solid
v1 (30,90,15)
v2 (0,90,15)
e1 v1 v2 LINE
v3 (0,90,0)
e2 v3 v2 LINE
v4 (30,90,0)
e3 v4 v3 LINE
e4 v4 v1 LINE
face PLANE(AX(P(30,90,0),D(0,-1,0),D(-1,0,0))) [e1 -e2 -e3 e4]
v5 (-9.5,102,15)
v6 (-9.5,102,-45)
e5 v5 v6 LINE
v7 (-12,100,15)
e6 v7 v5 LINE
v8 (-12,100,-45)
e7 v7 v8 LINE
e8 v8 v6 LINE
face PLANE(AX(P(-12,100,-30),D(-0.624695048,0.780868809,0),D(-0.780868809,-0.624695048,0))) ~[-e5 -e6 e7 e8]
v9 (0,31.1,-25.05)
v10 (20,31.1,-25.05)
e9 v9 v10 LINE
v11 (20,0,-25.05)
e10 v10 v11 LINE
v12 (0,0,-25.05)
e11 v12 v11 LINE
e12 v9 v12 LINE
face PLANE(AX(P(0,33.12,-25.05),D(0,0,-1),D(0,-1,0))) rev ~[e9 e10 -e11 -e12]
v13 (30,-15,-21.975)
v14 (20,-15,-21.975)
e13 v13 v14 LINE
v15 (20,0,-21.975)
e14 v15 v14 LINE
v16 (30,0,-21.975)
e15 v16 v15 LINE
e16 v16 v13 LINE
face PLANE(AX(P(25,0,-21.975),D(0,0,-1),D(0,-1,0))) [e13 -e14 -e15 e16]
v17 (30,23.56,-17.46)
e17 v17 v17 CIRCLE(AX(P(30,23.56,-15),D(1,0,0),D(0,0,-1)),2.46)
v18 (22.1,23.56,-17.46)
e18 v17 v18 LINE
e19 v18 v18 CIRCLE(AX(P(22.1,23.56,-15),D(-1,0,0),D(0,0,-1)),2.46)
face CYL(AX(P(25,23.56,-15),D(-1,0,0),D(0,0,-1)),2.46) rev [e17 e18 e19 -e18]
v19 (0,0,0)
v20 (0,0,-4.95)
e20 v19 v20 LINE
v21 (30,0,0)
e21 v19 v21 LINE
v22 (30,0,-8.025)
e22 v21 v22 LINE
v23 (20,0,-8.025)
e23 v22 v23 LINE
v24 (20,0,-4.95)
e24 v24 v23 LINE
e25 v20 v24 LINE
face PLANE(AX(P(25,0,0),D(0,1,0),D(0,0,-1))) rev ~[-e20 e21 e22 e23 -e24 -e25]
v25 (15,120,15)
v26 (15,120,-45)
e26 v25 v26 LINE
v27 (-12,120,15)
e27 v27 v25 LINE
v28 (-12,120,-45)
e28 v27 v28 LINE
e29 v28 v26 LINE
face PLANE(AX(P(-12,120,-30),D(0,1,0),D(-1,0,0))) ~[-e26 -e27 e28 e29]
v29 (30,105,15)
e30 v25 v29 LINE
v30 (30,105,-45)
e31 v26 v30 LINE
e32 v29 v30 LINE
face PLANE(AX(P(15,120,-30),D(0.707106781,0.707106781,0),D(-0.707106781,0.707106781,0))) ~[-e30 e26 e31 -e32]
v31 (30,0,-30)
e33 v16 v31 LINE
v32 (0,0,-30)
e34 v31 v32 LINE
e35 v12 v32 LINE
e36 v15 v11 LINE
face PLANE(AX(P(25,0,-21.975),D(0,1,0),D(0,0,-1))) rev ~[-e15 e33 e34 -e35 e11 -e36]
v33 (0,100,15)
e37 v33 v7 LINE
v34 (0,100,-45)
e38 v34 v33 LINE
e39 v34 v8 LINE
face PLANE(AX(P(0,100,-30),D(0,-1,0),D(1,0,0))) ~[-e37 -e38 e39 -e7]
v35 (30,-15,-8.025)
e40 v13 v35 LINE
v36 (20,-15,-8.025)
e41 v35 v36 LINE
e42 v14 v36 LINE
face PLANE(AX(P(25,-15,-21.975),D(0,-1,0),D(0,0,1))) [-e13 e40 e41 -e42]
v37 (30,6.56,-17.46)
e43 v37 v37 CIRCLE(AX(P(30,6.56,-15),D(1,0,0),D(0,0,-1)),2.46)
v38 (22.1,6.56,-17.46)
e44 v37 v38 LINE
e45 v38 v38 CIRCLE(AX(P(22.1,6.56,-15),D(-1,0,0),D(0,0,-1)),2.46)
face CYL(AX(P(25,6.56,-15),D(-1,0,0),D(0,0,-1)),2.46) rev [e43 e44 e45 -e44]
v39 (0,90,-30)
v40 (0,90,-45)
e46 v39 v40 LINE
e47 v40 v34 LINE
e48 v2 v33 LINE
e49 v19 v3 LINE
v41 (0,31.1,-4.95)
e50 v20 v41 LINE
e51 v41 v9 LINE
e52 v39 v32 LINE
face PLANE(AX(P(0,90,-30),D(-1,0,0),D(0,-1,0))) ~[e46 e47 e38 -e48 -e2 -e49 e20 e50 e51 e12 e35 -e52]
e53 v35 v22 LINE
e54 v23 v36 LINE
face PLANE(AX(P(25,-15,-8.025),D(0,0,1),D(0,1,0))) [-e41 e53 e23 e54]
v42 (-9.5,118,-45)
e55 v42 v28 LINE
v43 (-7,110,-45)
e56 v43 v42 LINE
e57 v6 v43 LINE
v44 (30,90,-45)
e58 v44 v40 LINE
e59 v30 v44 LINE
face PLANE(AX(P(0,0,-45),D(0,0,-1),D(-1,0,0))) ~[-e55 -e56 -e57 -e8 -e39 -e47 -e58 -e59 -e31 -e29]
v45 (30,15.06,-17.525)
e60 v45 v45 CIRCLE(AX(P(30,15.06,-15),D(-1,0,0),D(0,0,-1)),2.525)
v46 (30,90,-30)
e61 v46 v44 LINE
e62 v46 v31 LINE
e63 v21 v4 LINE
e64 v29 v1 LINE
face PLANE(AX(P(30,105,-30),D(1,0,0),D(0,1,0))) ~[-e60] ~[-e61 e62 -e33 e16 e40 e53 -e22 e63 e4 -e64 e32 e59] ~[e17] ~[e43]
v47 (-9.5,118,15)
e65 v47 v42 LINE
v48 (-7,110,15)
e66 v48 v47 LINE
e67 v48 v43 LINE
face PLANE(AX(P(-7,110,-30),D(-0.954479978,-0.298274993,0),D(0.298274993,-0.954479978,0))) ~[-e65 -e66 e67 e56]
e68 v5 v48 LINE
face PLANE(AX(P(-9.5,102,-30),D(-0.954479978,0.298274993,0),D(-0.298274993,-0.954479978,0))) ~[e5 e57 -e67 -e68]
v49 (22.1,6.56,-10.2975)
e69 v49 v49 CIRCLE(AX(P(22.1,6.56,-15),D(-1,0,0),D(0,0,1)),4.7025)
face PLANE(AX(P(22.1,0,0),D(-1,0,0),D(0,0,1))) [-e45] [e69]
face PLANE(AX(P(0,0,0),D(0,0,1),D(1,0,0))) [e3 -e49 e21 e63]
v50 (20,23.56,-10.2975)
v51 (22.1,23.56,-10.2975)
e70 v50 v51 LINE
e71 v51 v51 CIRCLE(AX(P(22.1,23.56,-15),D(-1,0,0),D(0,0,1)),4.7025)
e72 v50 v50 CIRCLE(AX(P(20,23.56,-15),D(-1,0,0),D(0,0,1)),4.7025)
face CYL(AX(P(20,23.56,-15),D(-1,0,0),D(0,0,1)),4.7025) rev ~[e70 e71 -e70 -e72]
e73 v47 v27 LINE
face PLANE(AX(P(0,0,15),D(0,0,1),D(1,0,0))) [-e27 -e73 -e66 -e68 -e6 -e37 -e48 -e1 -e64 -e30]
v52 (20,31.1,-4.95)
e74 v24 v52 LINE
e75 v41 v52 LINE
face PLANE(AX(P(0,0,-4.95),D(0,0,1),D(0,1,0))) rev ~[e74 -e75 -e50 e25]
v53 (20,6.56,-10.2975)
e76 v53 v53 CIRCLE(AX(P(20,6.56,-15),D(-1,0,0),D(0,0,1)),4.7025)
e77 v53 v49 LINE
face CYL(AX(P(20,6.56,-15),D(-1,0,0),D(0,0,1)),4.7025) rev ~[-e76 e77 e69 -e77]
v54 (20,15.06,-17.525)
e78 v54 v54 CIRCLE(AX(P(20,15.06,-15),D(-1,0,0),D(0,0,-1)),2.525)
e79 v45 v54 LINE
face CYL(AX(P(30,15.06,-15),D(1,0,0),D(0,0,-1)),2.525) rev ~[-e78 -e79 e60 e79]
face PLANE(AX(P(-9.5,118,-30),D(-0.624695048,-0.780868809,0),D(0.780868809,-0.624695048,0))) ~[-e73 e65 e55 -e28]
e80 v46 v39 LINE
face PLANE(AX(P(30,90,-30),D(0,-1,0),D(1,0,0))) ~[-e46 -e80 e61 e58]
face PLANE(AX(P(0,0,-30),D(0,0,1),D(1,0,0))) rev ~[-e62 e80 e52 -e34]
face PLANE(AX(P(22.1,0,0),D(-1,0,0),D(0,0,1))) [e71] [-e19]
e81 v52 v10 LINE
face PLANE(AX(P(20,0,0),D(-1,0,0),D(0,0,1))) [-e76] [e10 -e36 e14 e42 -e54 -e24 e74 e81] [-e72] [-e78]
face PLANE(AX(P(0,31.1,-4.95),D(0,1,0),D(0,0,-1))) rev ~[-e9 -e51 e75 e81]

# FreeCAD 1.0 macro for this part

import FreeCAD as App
import Part
import Sketcher

V = App.Vector


def add_polygon(sketch, points):
    """Adds a closed chain of lines whose ends are joined by coincident constraints."""
    first, n = sketch.GeometryCount, len(points)
    for a, b in zip(points, points[1:] + points[:1]):
        sketch.addGeometry(Part.LineSegment(App.Vector(*a, 0), App.Vector(*b, 0)), False)
    for i in range(n):
        sketch.addConstraint(Sketcher.Constraint("Coincident", first + i, 2, first + (i + 1) % n, 1))

doc = App.newDocument("Part")
params = doc.addObject("Spreadsheet::Sheet", "Params")
for row, (alias, value) in enumerate([
    ("sketch1_width", "25 mm"),
    ("sketch1_height", "40 mm"),
    ("pad1_length", "30 mm"),
    ("sketch2_diameter", "4.92 mm"),
    ("pocket1_length", "30 mm"),
    ("sketch3_height", "20.1 mm"),
    ("sketch3_width", "33.12 mm"),
    ("pocket2_length", "20 mm"),
    ("sketch4_height", "13.95 mm"),
    ("sketch4_width", "5 mm"),
    ("pad2_length", "15 mm"),
    ("sketch5_diameter", "4.92 mm"),
    ("pocket3_length", "2.1 mm"),
    ("sketch6_diameter", "4.92 mm"),
    ("pocket4_length", "10 mm"),
    ("sketch7_diameter", "4.92 mm"),
    ("pocket5_length", "2.1 mm"),
    ("sketch8_diameter", "4.92 mm"),
    ("sketch8_width", "40 mm"),
    ("sketch8_width2", "15 mm"),
    ("sketch8_height", "30 mm"),
    ("sketch8_height2", "13.95 mm"),
    ("pad3_length", "5 mm"),
    ("sketch9_width", "30 mm"),
    ("pad4_length", "30 mm"),
    ("sketch10_diameter", "5.05 mm"),
    ("pocket6_length", "30 mm"),
    ("sketch11_width", "12 mm"),
    ("sketch11_width2", "30 mm"),
    ("sketch11_width3", "27 mm"),
    ("sketch11_height", "35 mm"),
    ("pad5_length", "30 mm"),
    ("sketch12_width", "2.02 mm"),
    ("sketch12_height", "20.1 mm"),
    ("pad6_length", "20 mm"),
    ("sketch13_width", "30 mm"),
    ("sketch13_height", "15 mm"),
    ("sketch13_width2", "12 mm"),
    ("sketch13_height2", "10 mm"),
    ("pad7_length", "15 mm"),
], start=1):
    params.set(f"A{row}", alias)
    params.set(f"B{row}", "=" + value)
    params.setAlias(f"B{row}", alias)

body = doc.addObject("PartDesign::Body", "Body")

# Sketch on XY plane
sketch1 = body.newObject("Sketcher::SketchObject", "Sketch")
sketch1.AttachmentSupport = (doc.getObject("XY_Plane"), [""])
sketch1.MapMode = "FlatFace"
add_polygon(sketch1, [(0, 40), (0, 0), (25, 0), (25, 40)])  # lines 0-3
sketch1.addConstraint([
    Sketcher.Constraint("Vertical", 0),
    Sketcher.Constraint("Horizontal", 1),
    Sketcher.Constraint("Vertical", 2),
    Sketcher.Constraint("Horizontal", 3),
    Sketcher.Constraint("Coincident", 0, 2, -1, 1),
    Sketcher.Constraint("DistanceX", 1, 1, 1, 2, 25.0),
    Sketcher.Constraint("DistanceY", 0, 2, 0, 1, 40.0),
])
sketch1.setExpression("Constraints[9]", "Params.sketch1_width")
sketch1.setExpression("Constraints[10]", "Params.sketch1_height")
pad1 = body.newObject("PartDesign::Pad", "Pad")
pad1.Profile = sketch1
pad1.setExpression("Length", "Params.pad1_length")
pad1.Reversed = True

# Sketch on YZ plane
sketch2 = body.newObject("Sketcher::SketchObject", "Sketch001")
sketch2.AttachmentSupport = (doc.getObject("YZ_Plane"), [""])
sketch2.MapMode = "FlatFace"
sketch2.AttachmentOffset = App.Placement(V(0, 0, 25), App.Rotation())
sketch2.addGeometry(Part.Circle(V(6.56, -15, 0), V(0, 0, 1), 2.46), False)
sketch2.addConstraint([
    Sketcher.Constraint("Diameter", 0, 4.92),
    Sketcher.Constraint("DistanceY", 0, 3, -1, 1, 15.0),
    Sketcher.Constraint("DistanceX", -1, 1, 0, 3, 6.56),
])
sketch2.setExpression("Constraints[0]", "Params.sketch2_diameter")
pocket1 = body.newObject("PartDesign::Pocket", "Pocket")
pocket1.Profile = sketch2
pocket1.setExpression("Length", "Params.pocket1_length")

# Sketch on YZ plane
sketch3 = body.newObject("Sketcher::SketchObject", "Sketch002")
sketch3.AttachmentSupport = (doc.getObject("YZ_Plane"), [""])
sketch3.MapMode = "FlatFace"
add_polygon(sketch3, [(0, -25.05), (0, -4.95), (33.12, -4.95), (33.12, -25.05)])  # lines 0-3
sketch3.addConstraint([
    Sketcher.Constraint("Vertical", 0),
    Sketcher.Constraint("Horizontal", 1),
    Sketcher.Constraint("Vertical", 2),
    Sketcher.Constraint("Horizontal", 3),
    Sketcher.Constraint("PointOnObject", 0, 2, -2),
    Sketcher.Constraint("DistanceY", 0, 1, 0, 2, 20.1),
    Sketcher.Constraint("DistanceX", 1, 1, 1, 2, 33.12),
    Sketcher.Constraint("DistanceY", 0, 2, -1, 1, 4.95),
])
sketch3.setExpression("Constraints[9]", "Params.sketch3_height")
sketch3.setExpression("Constraints[10]", "Params.sketch3_width")
pocket2 = body.newObject("PartDesign::Pocket", "Pocket001")
pocket2.Profile = sketch3
pocket2.setExpression("Length", "Params.pocket2_length")
pocket2.Reversed = True

# Sketch on XZ plane
sketch4 = body.newObject("Sketcher::SketchObject", "Sketch003")
sketch4.AttachmentSupport = (doc.getObject("XZ_Plane"), [""])
sketch4.MapMode = "FlatFace"
add_polygon(sketch4, [(25, -8.025), (20, -8.025), (20, -21.975), (25, -21.975)])  # lines 0-3
sketch4.addConstraint([
    Sketcher.Constraint("Horizontal", 0),
    Sketcher.Constraint("Vertical", 1),
    Sketcher.Constraint("Horizontal", 2),
    Sketcher.Constraint("Vertical", 3),
    Sketcher.Constraint("DistanceY", 1, 2, 1, 1, 13.95),
    Sketcher.Constraint("DistanceX", 0, 2, 0, 1, 5.0),
    Sketcher.Constraint("DistanceX", -1, 1, 0, 2, 20.0),
    Sketcher.Constraint("DistanceY", 0, 2, -1, 1, 8.025),
])
sketch4.setExpression("Constraints[8]", "Params.sketch4_height")
sketch4.setExpression("Constraints[9]", "Params.sketch4_width")
pad2 = body.newObject("PartDesign::Pad", "Pad001")
pad2.Profile = sketch4
pad2.setExpression("Length", "Params.pad2_length")

# Sketch on YZ plane
sketch5 = body.newObject("Sketcher::SketchObject", "Sketch004")
sketch5.AttachmentSupport = (doc.getObject("YZ_Plane"), [""])
sketch5.MapMode = "FlatFace"
sketch5.AttachmentOffset = App.Placement(V(0, 0, 20), App.Rotation())
sketch5.addGeometry([
    Part.Circle(V(6.56, -15, 0), V(0, 0, 1), 4.7025),
    Part.Circle(V(6.56, -15, 0), V(0, 0, 1), 2.46),
], False)
sketch5.addConstraint([
    Sketcher.Constraint("Coincident", 1, 3, 0, 3),
    Sketcher.Constraint("Diameter", 0, 9.405),
    Sketcher.Constraint("Diameter", 1, 4.92),
    Sketcher.Constraint("DistanceY", 0, 3, -1, 1, 15.0),
    Sketcher.Constraint("DistanceX", -1, 1, 0, 3, 6.56),
])
sketch5.setExpression("Constraints[2]", "Params.sketch5_diameter")
pocket3 = body.newObject("PartDesign::Pocket", "Pocket002")
pocket3.Profile = sketch5
pocket3.setExpression("Length", "Params.pocket3_length")
pocket3.Reversed = True

# Sketch on YZ plane
sketch6 = body.newObject("Sketcher::SketchObject", "Sketch005")
sketch6.AttachmentSupport = (doc.getObject("YZ_Plane"), [""])
sketch6.MapMode = "FlatFace"
sketch6.AttachmentOffset = App.Placement(V(0, 0, 25), App.Rotation())
sketch6.addGeometry(Part.Circle(V(23.56, -15, 0), V(0, 0, 1), 2.46), False)
sketch6.addConstraint([
    Sketcher.Constraint("Diameter", 0, 4.92),
    Sketcher.Constraint("DistanceY", 0, 3, -1, 1, 15.0),
    Sketcher.Constraint("DistanceX", -1, 1, 0, 3, 23.56),
])
sketch6.setExpression("Constraints[0]", "Params.sketch6_diameter")
pocket4 = body.newObject("PartDesign::Pocket", "Pocket003")
pocket4.Profile = sketch6
pocket4.setExpression("Length", "Params.pocket4_length")

# Sketch on YZ plane
sketch7 = body.newObject("Sketcher::SketchObject", "Sketch006")
sketch7.AttachmentSupport = (doc.getObject("YZ_Plane"), [""])
sketch7.MapMode = "FlatFace"
sketch7.AttachmentOffset = App.Placement(V(0, 0, 20), App.Rotation())
sketch7.addGeometry([
    Part.Circle(V(23.56, -15, 0), V(0, 0, 1), 4.7025),
    Part.Circle(V(23.56, -15, 0), V(0, 0, 1), 2.46),
], False)
sketch7.addConstraint([
    Sketcher.Constraint("Coincident", 1, 3, 0, 3),
    Sketcher.Constraint("Diameter", 0, 9.405),
    Sketcher.Constraint("Diameter", 1, 4.92),
    Sketcher.Constraint("DistanceY", 0, 3, -1, 1, 15.0),
    Sketcher.Constraint("DistanceX", -1, 1, 0, 3, 23.56),
])
sketch7.setExpression("Constraints[2]", "Params.sketch7_diameter")
pocket5 = body.newObject("PartDesign::Pocket", "Pocket004")
pocket5.Profile = sketch7
pocket5.setExpression("Length", "Params.pocket5_length")
pocket5.Reversed = True

# Sketch on YZ plane
sketch8 = body.newObject("Sketcher::SketchObject", "Sketch007")
sketch8.AttachmentSupport = (doc.getObject("YZ_Plane"), [""])
sketch8.MapMode = "FlatFace"
sketch8.AttachmentOffset = App.Placement(V(0, 0, 25), App.Rotation())
add_polygon(sketch8, [(0, -30), (40, -30), (40, 0), (0, 0), (0, -8.025), (-15, -8.025), (-15, -21.975), (0, -21.975)])  # lines 0-7
sketch8.addGeometry(Part.Circle(V(6.56, -15, 0), V(0, 0, 1), 2.46), False)  # 8
sketch8.addGeometry(Part.Circle(V(23.56, -15, 0), V(0, 0, 1), 2.46), False)  # 9
sketch8.addConstraint([
    Sketcher.Constraint("Horizontal", 0),
    Sketcher.Constraint("Vertical", 1),
    Sketcher.Constraint("Horizontal", 2),
    Sketcher.Constraint("Vertical", 3),
    Sketcher.Constraint("Horizontal", 4),
    Sketcher.Constraint("Vertical", 5),
    Sketcher.Constraint("Horizontal", 6),
    Sketcher.Constraint("Vertical", 7),
    Sketcher.Constraint("Coincident", 2, 2, -1, 1),
    Sketcher.Constraint("Equal", 8, 9),
    Sketcher.Constraint("PointOnObject", 6, 2, -2),
    Sketcher.Constraint("Horizontal", 8, 3, 9, 3),
    Sketcher.Constraint("Equal", 3, 7),
    Sketcher.Constraint("Diameter", 8, 4.92),
    Sketcher.Constraint("DistanceX", 0, 1, 0, 2, 40.0),
    Sketcher.Constraint("DistanceX", 4, 2, 4, 1, 15.0),
    Sketcher.Constraint("DistanceY", 1, 1, 1, 2, 30.0),
    Sketcher.Constraint("DistanceY", 8, 3, -1, 1, 15.0),
    Sketcher.Constraint("DistanceX", 8, 3, 9, 3, 17.0),
    Sketcher.Constraint("DistanceY", 5, 2, 5, 1, 13.95),
    Sketcher.Constraint("DistanceX", -1, 1, 8, 3, 6.56),
])
sketch8.setExpression("Constraints[21]", "Params.sketch8_diameter")
sketch8.setExpression("Constraints[22]", "Params.sketch8_width")
sketch8.setExpression("Constraints[23]", "Params.sketch8_width2")
sketch8.setExpression("Constraints[24]", "Params.sketch8_height")
sketch8.setExpression("Constraints[27]", "Params.sketch8_height2")
pad3 = body.newObject("PartDesign::Pad", "Pad002")
pad3.Profile = sketch8
pad3.setExpression("Length", "Params.pad3_length")

# Sketch on XZ plane
sketch9 = body.newObject("Sketcher::SketchObject", "Sketch008")
sketch9.AttachmentSupport = (doc.getObject("XZ_Plane"), [""])
sketch9.MapMode = "FlatFace"
sketch9.AttachmentOffset = App.Placement(V(0, 0, -40), App.Rotation())
add_polygon(sketch9, [(30, -30), (0, -30), (0, 0), (30, 0)])  # lines 0-3
sketch9.addConstraint([
    Sketcher.Constraint("Horizontal", 0),
    Sketcher.Constraint("Vertical", 1),
    Sketcher.Constraint("Horizontal", 2),
    Sketcher.Constraint("Vertical", 3),
    Sketcher.Constraint("Coincident", 1, 2, -1, 1),
    Sketcher.Constraint("Equal", 2, 1),
    Sketcher.Constraint("DistanceX", 0, 2, 0, 1, 30.0),
])
sketch9.setExpression("Constraints[10]", "Params.sketch9_width")
pad4 = body.newObject("PartDesign::Pad", "Pad003")
pad4.Profile = sketch9
pad4.setExpression("Length", "Params.pad4_length")
pad4.Reversed = True

# Sketch on YZ plane
sketch10 = body.newObject("Sketcher::SketchObject", "Sketch009")
sketch10.AttachmentSupport = (doc.getObject("YZ_Plane"), [""])
sketch10.MapMode = "FlatFace"
sketch10.AttachmentOffset = App.Placement(V(0, 0, 30), App.Rotation())
sketch10.addGeometry(Part.Circle(V(15.06, -15, 0), V(0, 0, 1), 2.525), False)
sketch10.addConstraint([
    Sketcher.Constraint("Diameter", 0, 5.05),
    Sketcher.Constraint("DistanceY", 0, 3, -1, 1, 15.0),
    Sketcher.Constraint("DistanceX", -1, 1, 0, 3, 15.06),
])
sketch10.setExpression("Constraints[0]", "Params.sketch10_diameter")
pocket6 = body.newObject("PartDesign::Pocket", "Pocket005")
pocket6.Profile = sketch10
pocket6.setExpression("Length", "Params.pocket6_length")

# Sketch on XY plane
sketch11 = body.newObject("Sketcher::SketchObject", "Sketch010")
sketch11.AttachmentSupport = (doc.getObject("XY_Plane"), [""])
sketch11.MapMode = "FlatFace"
add_polygon(sketch11, [(0, 70), (30, 70), (30, 105), (15, 120), (-12, 120), (-9.5, 118), (-7, 110), (-9.5, 102), (-12, 100), (0, 100)])  # lines 0-9
sketch11.addConstraint([
    Sketcher.Constraint("Horizontal", 0),
    Sketcher.Constraint("Vertical", 1),
    Sketcher.Constraint("Horizontal", 3),
    Sketcher.Constraint("Horizontal", 8),
    Sketcher.Constraint("Vertical", 9),
    Sketcher.Constraint("PointOnObject", 8, 2, -2),
    Sketcher.Constraint("Vertical", 4, 2, 6, 2),
    Sketcher.Constraint("Vertical", 3, 2, 7, 2),
    Sketcher.Constraint("Equal", 0, 9),
    Sketcher.Constraint("Equal", 5, 6),
    Sketcher.Constraint("Equal", 4, 7),
    Sketcher.Constraint("DistanceX", 8, 1, 8, 2, 12.0),
    Sketcher.Constraint("DistanceY", 7, 2, 3, 2, 20.0),
    Sketcher.Constraint("DistanceX", 0, 1, 0, 2, 30.0),
    Sketcher.Constraint("DistanceX", 3, 2, 3, 1, 27.0),
    Sketcher.Constraint("DistanceY", 1, 1, 1, 2, 35.0),
    Sketcher.Constraint("DistanceY", -1, 1, 0, 2, 70.0),
    Sketcher.Constraint("DistanceY", -1, 1, 4, 2, 118.0),
    Sketcher.Constraint("DistanceX", 5, 2, -1, 1, 7.0),
    Sketcher.Constraint("DistanceX", 4, 2, -1, 1, 9.5),
])
sketch11.setExpression("Constraints[21]", "Params.sketch11_width")
sketch11.setExpression("Constraints[23]", "Params.sketch11_width2")
sketch11.setExpression("Constraints[24]", "Params.sketch11_width3")
sketch11.setExpression("Constraints[25]", "Params.sketch11_height")
pad5 = body.newObject("PartDesign::Pad", "Pad004")
pad5.Profile = sketch11
pad5.setExpression("Length", "Params.pad5_length")
pad5.Reversed = True

# Sketch on YZ plane
sketch12 = body.newObject("Sketcher::SketchObject", "Sketch011")
sketch12.AttachmentSupport = (doc.getObject("YZ_Plane"), [""])
sketch12.MapMode = "FlatFace"
add_polygon(sketch12, [(33.12, -4.95), (33.12, -25.05), (31.1, -25.05), (31.1, -4.95)])  # lines 0-3
sketch12.addConstraint([
    Sketcher.Constraint("Vertical", 0),
    Sketcher.Constraint("Horizontal", 1),
    Sketcher.Constraint("Vertical", 2),
    Sketcher.Constraint("Horizontal", 3),
    Sketcher.Constraint("DistanceX", 1, 2, 1, 1, 2.02),
    Sketcher.Constraint("DistanceY", 0, 2, 0, 1, 20.1),
    Sketcher.Constraint("DistanceX", -1, 1, 1, 2, 31.1),
    Sketcher.Constraint("DistanceY", 0, 2, -1, 1, 25.05),
])
sketch12.setExpression("Constraints[8]", "Params.sketch12_width")
sketch12.setExpression("Constraints[9]", "Params.sketch12_height")
pad6 = body.newObject("PartDesign::Pad", "Pad005")
pad6.Profile = sketch12
pad6.setExpression("Length", "Params.pad6_length")

# Sketch on XY plane
sketch13 = body.newObject("Sketcher::SketchObject", "Sketch012")
sketch13.AttachmentSupport = (doc.getObject("XY_Plane"), [""])
sketch13.MapMode = "FlatFace"
add_polygon(sketch13, [(-12, 100), (0, 100), (0, 90), (30, 90), (30, 105), (15, 120), (-12, 120), (-9.5, 118), (-7, 110), (-9.5, 102)])  # lines 0-9
sketch13.addConstraint([
    Sketcher.Constraint("Horizontal", 0),
    Sketcher.Constraint("Vertical", 1),
    Sketcher.Constraint("Horizontal", 2),
    Sketcher.Constraint("Vertical", 3),
    Sketcher.Constraint("Horizontal", 5),
    Sketcher.Constraint("PointOnObject", 0, 2, -2),
    Sketcher.Constraint("Vertical", 6, 2, 8, 2),
    Sketcher.Constraint("Vertical", 5, 2, 9, 2),
    Sketcher.Constraint("Equal", 7, 8),
    Sketcher.Constraint("Equal", 6, 9),
    Sketcher.Constraint("DistanceX", 2, 1, 2, 2, 30.0),
    Sketcher.Constraint("DistanceY", 3, 1, 3, 2, 15.0),
    Sketcher.Constraint("DistanceX", -1, 1, 4, 2, 15.0),
    Sketcher.Constraint("DistanceY", 3, 2, 4, 2, 15.0),
    Sketcher.Constraint("DistanceX", 0, 1, 0, 2, 12.0),
    Sketcher.Constraint("DistanceY", 1, 2, 1, 1, 10.0),
    Sketcher.Constraint("DistanceY", -1, 1, 0, 2, 100.0),
    Sketcher.Constraint("DistanceY", -1, 1, 6, 2, 118.0),
    Sketcher.Constraint("DistanceX", 7, 2, -1, 1, 7.0),
    Sketcher.Constraint("DistanceX", 6, 2, -1, 1, 9.5),
])
sketch13.setExpression("Constraints[20]", "Params.sketch13_width")
sketch13.setExpression("Constraints[21]", "Params.sketch13_height")
sketch13.setExpression("Constraints[24]", "Params.sketch13_width2")
sketch13.setExpression("Constraints[25]", "Params.sketch13_height2")
pad7 = body.newObject("PartDesign::Pad", "Pad006")
pad7.Profile = sketch13
pad7.setExpression("Length", "Params.pad7_length")
doc.recompute()

datumplane = body.newObject("PartDesign::Plane", "DatumPlane")
datumplane.AttachmentSupport = (doc.getObject("XY_Plane"), [""])
datumplane.MapMode = "FlatFace"
datumplane.AttachmentOffset = App.Placement(V(0, 0, -15), App.Rotation())
mirrored = body.newObject("PartDesign::Mirrored", "Mirrored")
mirrored.Originals = [pad7]
mirrored.MirrorPlane = (datumplane, [""])
body.Tip = mirrored

doc.recompute()
